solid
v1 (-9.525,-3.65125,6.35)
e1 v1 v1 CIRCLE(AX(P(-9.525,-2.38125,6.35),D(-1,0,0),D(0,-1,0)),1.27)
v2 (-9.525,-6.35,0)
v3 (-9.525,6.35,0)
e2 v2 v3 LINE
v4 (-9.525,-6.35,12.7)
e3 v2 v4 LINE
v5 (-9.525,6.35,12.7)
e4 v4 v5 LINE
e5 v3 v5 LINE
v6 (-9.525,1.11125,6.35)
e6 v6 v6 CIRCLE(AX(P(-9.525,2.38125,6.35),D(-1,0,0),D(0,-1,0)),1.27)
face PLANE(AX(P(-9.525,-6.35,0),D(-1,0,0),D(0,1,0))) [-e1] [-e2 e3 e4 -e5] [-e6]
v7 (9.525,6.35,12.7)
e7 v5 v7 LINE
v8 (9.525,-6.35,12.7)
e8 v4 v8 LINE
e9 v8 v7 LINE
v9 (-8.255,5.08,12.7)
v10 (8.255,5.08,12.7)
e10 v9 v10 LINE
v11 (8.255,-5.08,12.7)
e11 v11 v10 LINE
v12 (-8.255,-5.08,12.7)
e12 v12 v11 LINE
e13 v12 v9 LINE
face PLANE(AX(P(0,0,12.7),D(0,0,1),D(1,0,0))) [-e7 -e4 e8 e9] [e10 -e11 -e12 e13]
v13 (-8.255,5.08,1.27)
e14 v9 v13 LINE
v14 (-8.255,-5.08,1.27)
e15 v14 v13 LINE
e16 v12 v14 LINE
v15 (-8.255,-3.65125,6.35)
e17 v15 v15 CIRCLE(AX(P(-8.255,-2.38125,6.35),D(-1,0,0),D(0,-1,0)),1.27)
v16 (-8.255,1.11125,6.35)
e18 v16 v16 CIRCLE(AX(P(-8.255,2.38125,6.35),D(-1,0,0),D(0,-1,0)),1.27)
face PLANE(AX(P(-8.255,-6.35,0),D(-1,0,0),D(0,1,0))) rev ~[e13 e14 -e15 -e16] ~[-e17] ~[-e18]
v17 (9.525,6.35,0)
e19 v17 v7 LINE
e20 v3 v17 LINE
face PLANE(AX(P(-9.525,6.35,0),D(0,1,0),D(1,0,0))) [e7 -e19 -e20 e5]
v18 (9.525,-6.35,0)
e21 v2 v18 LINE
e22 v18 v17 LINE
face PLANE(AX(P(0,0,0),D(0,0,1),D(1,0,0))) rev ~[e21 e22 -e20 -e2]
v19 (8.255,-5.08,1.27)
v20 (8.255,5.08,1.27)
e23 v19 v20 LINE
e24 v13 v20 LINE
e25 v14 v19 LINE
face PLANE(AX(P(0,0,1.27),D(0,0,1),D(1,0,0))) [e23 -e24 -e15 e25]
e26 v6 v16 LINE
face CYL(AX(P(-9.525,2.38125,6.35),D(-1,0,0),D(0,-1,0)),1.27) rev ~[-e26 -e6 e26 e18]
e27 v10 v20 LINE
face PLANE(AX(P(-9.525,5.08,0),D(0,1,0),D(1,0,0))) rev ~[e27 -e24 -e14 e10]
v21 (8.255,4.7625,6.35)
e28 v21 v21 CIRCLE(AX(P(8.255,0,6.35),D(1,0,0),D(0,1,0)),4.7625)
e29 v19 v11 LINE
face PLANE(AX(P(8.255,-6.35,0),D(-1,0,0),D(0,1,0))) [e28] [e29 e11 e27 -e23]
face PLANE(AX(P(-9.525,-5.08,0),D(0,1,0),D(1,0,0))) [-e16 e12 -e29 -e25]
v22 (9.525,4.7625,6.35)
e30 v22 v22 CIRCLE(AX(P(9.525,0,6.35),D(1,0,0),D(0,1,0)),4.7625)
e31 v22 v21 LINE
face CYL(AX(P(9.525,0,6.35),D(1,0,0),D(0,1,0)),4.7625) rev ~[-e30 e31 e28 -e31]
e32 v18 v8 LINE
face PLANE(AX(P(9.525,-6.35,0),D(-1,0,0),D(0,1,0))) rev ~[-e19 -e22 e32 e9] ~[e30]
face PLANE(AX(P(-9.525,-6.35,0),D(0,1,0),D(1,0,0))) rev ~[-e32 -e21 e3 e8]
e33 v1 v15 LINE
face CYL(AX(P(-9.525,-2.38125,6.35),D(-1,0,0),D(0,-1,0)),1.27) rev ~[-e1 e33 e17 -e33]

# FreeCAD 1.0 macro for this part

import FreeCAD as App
import Part
import Sketcher
Q = App.Units.Quantity


def faces_at(feature, points):
    """Names of the faces that lie closest to the given points."""
    faces = feature.Shape.Faces
    near = lambda p: min(range(len(faces)), key=lambda i: faces[i].distToShape(Part.Vertex(*p))[0])
    return sorted({f"Face{near(p) + 1}" for p in points})


def add_polygon(sketch, points):
    """Adds a closed chain of lines whose ends are joined by coincident constraints."""
    first, n = sketch.GeometryCount, len(points)
    for a, b in zip(points, points[1:] + points[:1]):
        sketch.addGeometry(Part.LineSegment(App.Vector(*a, 0), App.Vector(*b, 0)), False)
    for i in range(n):
        sketch.addConstraint(Sketcher.Constraint("Coincident", first + i, 2, first + (i + 1) % n, 1))

doc = App.newDocument("Part")
params = doc.addObject("Spreadsheet::Sheet", "Params")
for row, (alias, value) in enumerate([
    ("sketch1_height", "0.5 in"),
    ("sketch1_width", "0.75 in"),
    ("pad1_length", "0.5 in"),
    ("thickness_wall", "0.05 in"),
    ("sketch2_diameter", "0.375 in"),
    ("pocket1_length", "0.05 in"),
    ("sketch3_diameter", "0.1 in"),
], start=1):
    params.set(f"A{row}", alias)
    params.set(f"B{row}", "=" + value)
    params.setAlias(f"B{row}", alias)

body = doc.addObject("PartDesign::Body", "Body")

# Sketch on XY plane
sketch1 = body.newObject("Sketcher::SketchObject", "Sketch")
sketch1.AttachmentSupport = (doc.getObject("XY_Plane"), [""])
sketch1.MapMode = "FlatFace"
add_polygon(sketch1, [(-10, 6), (-10, -6), (10, -6), (10, 6)])  # lines 0-3
sketch1.addConstraint([
    Sketcher.Constraint("Vertical", 0),
    Sketcher.Constraint("Horizontal", 1),
    Sketcher.Constraint("Vertical", 2),
    Sketcher.Constraint("Horizontal", 3),
    Sketcher.Constraint("Symmetric", 0, 2, 2, 2, -1, 1),
    Sketcher.Constraint("DistanceY", 0, 2, 0, 1, Q("0.5 in")),
    Sketcher.Constraint("DistanceX", 1, 1, 1, 2, Q("0.75 in")),
])
sketch1.setExpression("Constraints[9]", "Params.sketch1_height")
sketch1.setExpression("Constraints[10]", "Params.sketch1_width")
pad1 = body.newObject("PartDesign::Pad", "Pad")
pad1.Profile = sketch1
pad1.setExpression("Length", "Params.pad1_length")
doc.recompute()

thickness = body.newObject("PartDesign::Thickness", "Thickness")
thickness.Base = (pad1, faces_at(pad1, [(0, 0, 12.7)]))
thickness.setExpression("Value", "Params.thickness_wall")
thickness.Reversed = True
thickness.Join = "Arc"

# Sketch on YZ plane
sketch2 = body.newObject("Sketcher::SketchObject", "Sketch001")
sketch2.AttachmentSupport = (doc.getObject("YZ_Plane"), [""])
sketch2.MapMode = "FlatFace"
sketch2.AttachmentOffset = App.Placement(App.Vector(0, 0, 0.375 * 25.4), App.Rotation())
sketch2.addGeometry(Part.Circle(App.Vector(0, 6.3, 0), App.Vector(0, 0, 1), 4.8), False)
sketch2.addConstraint([
    Sketcher.Constraint("PointOnObject", 0, 3, -2),
    Sketcher.Constraint("Diameter", 0, Q("0.375 in")),
    Sketcher.Constraint("DistanceY", -1, 1, 0, 3, Q("0.25 in")),
])
sketch2.setExpression("Constraints[1]", "Params.sketch2_diameter")
pocket1 = body.newObject("PartDesign::Pocket", "Pocket")
pocket1.Profile = sketch2
pocket1.setExpression("Length", "Params.pocket1_length")

# Sketch on YZ plane
sketch3 = body.newObject("Sketcher::SketchObject", "Sketch002")
sketch3.AttachmentSupport = (doc.getObject("YZ_Plane"), [""])
sketch3.MapMode = "FlatFace"
sketch3.AttachmentOffset = App.Placement(App.Vector(0, 0, -0.375 * 25.4), App.Rotation())
sketch3.addGeometry([
    Part.Circle(App.Vector(2.4, 6.3, 0), App.Vector(0, 0, 1), 1.3),
    Part.Circle(App.Vector(-2.4, 6.3, 0), App.Vector(0, 0, 1), 1.3),
], False)
sketch3.addConstraint([
    Sketcher.Constraint("Equal", 0, 1),
    Sketcher.Constraint("Symmetric", 0, 3, 1, 3, -2),
    Sketcher.Constraint("Diameter", 0, Q("0.1 in")),
    Sketcher.Constraint("DistanceY", -1, 1, 0, 3, Q("0.25 in")),
    Sketcher.Constraint("DistanceX", -1, 1, 0, 3, Q("0.09375 in")),
])
sketch3.setExpression("Constraints[2]", "Params.sketch3_diameter")
pocket2 = body.newObject("PartDesign::Pocket", "Pocket001")
pocket2.Profile = sketch3
pocket2.Type = "ThroughAll"
pocket2.Reversed = True

doc.recompute()
